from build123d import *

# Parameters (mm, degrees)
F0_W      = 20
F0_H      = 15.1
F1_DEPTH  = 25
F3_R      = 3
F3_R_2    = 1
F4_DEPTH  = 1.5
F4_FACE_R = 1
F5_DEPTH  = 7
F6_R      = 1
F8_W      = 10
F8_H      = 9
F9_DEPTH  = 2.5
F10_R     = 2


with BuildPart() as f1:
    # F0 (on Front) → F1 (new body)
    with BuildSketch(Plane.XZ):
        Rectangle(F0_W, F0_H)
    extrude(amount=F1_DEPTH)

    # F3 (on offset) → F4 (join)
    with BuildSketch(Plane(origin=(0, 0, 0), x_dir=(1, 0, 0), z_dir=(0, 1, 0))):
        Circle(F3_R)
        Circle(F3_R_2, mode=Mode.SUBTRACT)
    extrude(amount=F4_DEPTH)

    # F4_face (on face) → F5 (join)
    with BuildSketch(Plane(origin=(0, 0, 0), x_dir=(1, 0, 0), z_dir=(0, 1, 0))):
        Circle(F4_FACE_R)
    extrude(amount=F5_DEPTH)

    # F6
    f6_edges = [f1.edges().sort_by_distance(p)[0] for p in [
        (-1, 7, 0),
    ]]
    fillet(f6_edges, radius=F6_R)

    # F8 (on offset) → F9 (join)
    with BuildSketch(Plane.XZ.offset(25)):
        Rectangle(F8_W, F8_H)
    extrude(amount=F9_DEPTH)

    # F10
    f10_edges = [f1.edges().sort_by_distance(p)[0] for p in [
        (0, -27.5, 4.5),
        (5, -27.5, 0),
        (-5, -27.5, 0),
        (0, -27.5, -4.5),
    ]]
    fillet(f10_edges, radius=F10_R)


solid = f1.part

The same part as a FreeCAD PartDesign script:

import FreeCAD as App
import Part
import Sketcher


def edges_at(feature, points):
    """Names of the edges that pass closest to the given points."""
    edges = feature.Shape.Edges
    near = lambda p: min(range(len(edges)), key=lambda i: edges[i].distToShape(Part.Vertex(*p))[0])
    return sorted({f"Edge{near(p) + 1}" for p in points})

doc = App.newDocument("Part")
params = doc.addObject("Spreadsheet::Sheet", "Params")
for row, (alias, value) in enumerate([
    ("sketch1_width", "20 mm"),
    ("sketch1_height", "15.1 mm"),
    ("pad1_length", "25 mm"),
    ("sketch2_diameter", "6 mm"),
    ("sketch2_diameter2", "2 mm"),
    ("pad2_length", "1.5 mm"),
    ("sketch3_diameter", "2 mm"),
    ("pad3_length", "7 mm"),
    ("fillet_radius", "1 mm"),
    ("sketch4_width", "10 mm"),
    ("sketch4_height", "9 mm"),
    ("pad4_length", "2.5 mm"),
    ("fillet2_radius", "2 mm"),
], start=1):
    params.set(f"A{row}", alias)
    params.set(f"B{row}", "=" + value)
    params.setAlias(f"B{row}", alias)

body = doc.addObject("PartDesign::Body", "Body")

sketch1 = body.newObject("Sketcher::SketchObject", "Sketch")
sketch1.AttachmentSupport = (doc.getObject("XZ_Plane"), [""])
sketch1.MapMode = "FlatFace"
sketch1.addGeometry(Part.LineSegment(App.Vector(-10, 8, 0), App.Vector(-10, -8, 0)), False)
sketch1.addGeometry(Part.LineSegment(App.Vector(-10, -8, 0), App.Vector(10, -8, 0)), False)
sketch1.addGeometry(Part.LineSegment(App.Vector(10, -8, 0), App.Vector(10, 8, 0)), False)
sketch1.addGeometry(Part.LineSegment(App.Vector(10, 8, 0), App.Vector(-10, 8, 0)), False)
sketch1.addConstraint(Sketcher.Constraint("Coincident", 0, 2, 1, 1))
sketch1.addConstraint(Sketcher.Constraint("Coincident", 1, 2, 2, 1))
sketch1.addConstraint(Sketcher.Constraint("Coincident", 2, 2, 3, 1))
sketch1.addConstraint(Sketcher.Constraint("Coincident", 3, 2, 0, 1))
sketch1.addConstraint(Sketcher.Constraint("Vertical", 0))
sketch1.addConstraint(Sketcher.Constraint("Horizontal", 1))
sketch1.addConstraint(Sketcher.Constraint("Vertical", 2))
sketch1.addConstraint(Sketcher.Constraint("Horizontal", 3))
sketch1.addConstraint(Sketcher.Constraint("Symmetric", 0, 2, 2, 2, -1, 1))
sketch1.addConstraint(Sketcher.Constraint("DistanceX", 1, 1, 1, 2, 20.0))
sketch1.addConstraint(Sketcher.Constraint("DistanceY", 0, 2, 0, 1, 15.1))
sketch1.setExpression("Constraints[9]", "Params.sketch1_width")
sketch1.setExpression("Constraints[10]", "Params.sketch1_height")
pad1 = body.newObject("PartDesign::Pad", "Pad")
pad1.Profile = sketch1
pad1.setExpression("Length", "Params.pad1_length")

sketch2 = body.newObject("Sketcher::SketchObject", "Sketch001")
sketch2.AttachmentSupport = (doc.getObject("XZ_Plane"), [""])
sketch2.MapMode = "FlatFace"
sketch2.addGeometry(Part.Circle(App.Vector(0, 0, 0), App.Vector(0, 0, 1), 3), False)
sketch2.addGeometry(Part.Circle(App.Vector(0, 0, 0), App.Vector(0, 0, 1), 1), False)
sketch2.addConstraint(Sketcher.Constraint("Coincident", 0, 3, -1, 1))
sketch2.addConstraint(Sketcher.Constraint("Coincident", 1, 3, -1, 1))
sketch2.addConstraint(Sketcher.Constraint("Diameter", 0, 6.0))
sketch2.addConstraint(Sketcher.Constraint("Diameter", 1, 2.0))
sketch2.setExpression("Constraints[2]", "Params.sketch2_diameter")
sketch2.setExpression("Constraints[3]", "Params.sketch2_diameter2")
pad2 = body.newObject("PartDesign::Pad", "Pad001")
pad2.Profile = sketch2
pad2.setExpression("Length", "Params.pad2_length")
pad2.Reversed = True

sketch3 = body.newObject("Sketcher::SketchObject", "Sketch002")
sketch3.AttachmentSupport = (doc.getObject("XZ_Plane"), [""])
sketch3.MapMode = "FlatFace"
sketch3.addGeometry(Part.Circle(App.Vector(0, 0, 0), App.Vector(0, 0, 1), 1), False)
sketch3.addConstraint(Sketcher.Constraint("Coincident", 0, 3, -1, 1))
sketch3.addConstraint(Sketcher.Constraint("Diameter", 0, 2.0))
sketch3.setExpression("Constraints[1]", "Params.sketch3_diameter")
pad3 = body.newObject("PartDesign::Pad", "Pad002")
pad3.Profile = sketch3
pad3.setExpression("Length", "Params.pad3_length")
pad3.Reversed = True
doc.recompute()

fillet = body.newObject("PartDesign::Fillet", "Fillet")
fillet.Base = (pad3, edges_at(pad3, [(-1, 7, 0)]))
fillet.setExpression("Radius", "Params.fillet_radius")

sketch4 = body.newObject("Sketcher::SketchObject", "Sketch003")
sketch4.AttachmentSupport = (doc.getObject("XZ_Plane"), [""])
sketch4.MapMode = "FlatFace"
sketch4.AttachmentOffset = App.Placement(App.Vector(0, 0, 25), App.Rotation())
sketch4.addGeometry(Part.LineSegment(App.Vector(-5, 4, 0), App.Vector(-5, -4, 0)), False)
sketch4.addGeometry(Part.LineSegment(App.Vector(-5, -4, 0), App.Vector(5, -4, 0)), False)
sketch4.addGeometry(Part.LineSegment(App.Vector(5, -4, 0), App.Vector(5, 4, 0)), False)
sketch4.addGeometry(Part.LineSegment(App.Vector(5, 4, 0), App.Vector(-5, 4, 0)), False)
sketch4.addConstraint(Sketcher.Constraint("Coincident", 0, 2, 1, 1))
sketch4.addConstraint(Sketcher.Constraint("Coincident", 1, 2, 2, 1))
sketch4.addConstraint(Sketcher.Constraint("Coincident", 2, 2, 3, 1))
sketch4.addConstraint(Sketcher.Constraint("Coincident", 3, 2, 0, 1))
sketch4.addConstraint(Sketcher.Constraint("Vertical", 0))
sketch4.addConstraint(Sketcher.Constraint("Horizontal", 1))
sketch4.addConstraint(Sketcher.Constraint("Vertical", 2))
sketch4.addConstraint(Sketcher.Constraint("Horizontal", 3))
sketch4.addConstraint(Sketcher.Constraint("Symmetric", 0, 2, 2, 2, -1, 1))
sketch4.addConstraint(Sketcher.Constraint("DistanceX", 1, 1, 1, 2, 10.0))
sketch4.addConstraint(Sketcher.Constraint("DistanceY", 0, 2, 0, 1, 9.0))
sketch4.setExpression("Constraints[9]", "Params.sketch4_width")
sketch4.setExpression("Constraints[10]", "Params.sketch4_height")
pad4 = body.newObject("PartDesign::Pad", "Pad003")
pad4.Profile = sketch4
pad4.setExpression("Length", "Params.pad4_length")
doc.recompute()

fillet2 = body.newObject("PartDesign::Fillet", "Fillet001")
fillet2.Base = (pad4, edges_at(pad4, [
    (0, -27.5, 4.5),
    (5, -27.5, 0),
    (-5, -27.5, 0),
    (0, -27.5, -4.5),
]))
fillet2.setExpression("Radius", "Params.fillet2_radius")

doc.recompute()
